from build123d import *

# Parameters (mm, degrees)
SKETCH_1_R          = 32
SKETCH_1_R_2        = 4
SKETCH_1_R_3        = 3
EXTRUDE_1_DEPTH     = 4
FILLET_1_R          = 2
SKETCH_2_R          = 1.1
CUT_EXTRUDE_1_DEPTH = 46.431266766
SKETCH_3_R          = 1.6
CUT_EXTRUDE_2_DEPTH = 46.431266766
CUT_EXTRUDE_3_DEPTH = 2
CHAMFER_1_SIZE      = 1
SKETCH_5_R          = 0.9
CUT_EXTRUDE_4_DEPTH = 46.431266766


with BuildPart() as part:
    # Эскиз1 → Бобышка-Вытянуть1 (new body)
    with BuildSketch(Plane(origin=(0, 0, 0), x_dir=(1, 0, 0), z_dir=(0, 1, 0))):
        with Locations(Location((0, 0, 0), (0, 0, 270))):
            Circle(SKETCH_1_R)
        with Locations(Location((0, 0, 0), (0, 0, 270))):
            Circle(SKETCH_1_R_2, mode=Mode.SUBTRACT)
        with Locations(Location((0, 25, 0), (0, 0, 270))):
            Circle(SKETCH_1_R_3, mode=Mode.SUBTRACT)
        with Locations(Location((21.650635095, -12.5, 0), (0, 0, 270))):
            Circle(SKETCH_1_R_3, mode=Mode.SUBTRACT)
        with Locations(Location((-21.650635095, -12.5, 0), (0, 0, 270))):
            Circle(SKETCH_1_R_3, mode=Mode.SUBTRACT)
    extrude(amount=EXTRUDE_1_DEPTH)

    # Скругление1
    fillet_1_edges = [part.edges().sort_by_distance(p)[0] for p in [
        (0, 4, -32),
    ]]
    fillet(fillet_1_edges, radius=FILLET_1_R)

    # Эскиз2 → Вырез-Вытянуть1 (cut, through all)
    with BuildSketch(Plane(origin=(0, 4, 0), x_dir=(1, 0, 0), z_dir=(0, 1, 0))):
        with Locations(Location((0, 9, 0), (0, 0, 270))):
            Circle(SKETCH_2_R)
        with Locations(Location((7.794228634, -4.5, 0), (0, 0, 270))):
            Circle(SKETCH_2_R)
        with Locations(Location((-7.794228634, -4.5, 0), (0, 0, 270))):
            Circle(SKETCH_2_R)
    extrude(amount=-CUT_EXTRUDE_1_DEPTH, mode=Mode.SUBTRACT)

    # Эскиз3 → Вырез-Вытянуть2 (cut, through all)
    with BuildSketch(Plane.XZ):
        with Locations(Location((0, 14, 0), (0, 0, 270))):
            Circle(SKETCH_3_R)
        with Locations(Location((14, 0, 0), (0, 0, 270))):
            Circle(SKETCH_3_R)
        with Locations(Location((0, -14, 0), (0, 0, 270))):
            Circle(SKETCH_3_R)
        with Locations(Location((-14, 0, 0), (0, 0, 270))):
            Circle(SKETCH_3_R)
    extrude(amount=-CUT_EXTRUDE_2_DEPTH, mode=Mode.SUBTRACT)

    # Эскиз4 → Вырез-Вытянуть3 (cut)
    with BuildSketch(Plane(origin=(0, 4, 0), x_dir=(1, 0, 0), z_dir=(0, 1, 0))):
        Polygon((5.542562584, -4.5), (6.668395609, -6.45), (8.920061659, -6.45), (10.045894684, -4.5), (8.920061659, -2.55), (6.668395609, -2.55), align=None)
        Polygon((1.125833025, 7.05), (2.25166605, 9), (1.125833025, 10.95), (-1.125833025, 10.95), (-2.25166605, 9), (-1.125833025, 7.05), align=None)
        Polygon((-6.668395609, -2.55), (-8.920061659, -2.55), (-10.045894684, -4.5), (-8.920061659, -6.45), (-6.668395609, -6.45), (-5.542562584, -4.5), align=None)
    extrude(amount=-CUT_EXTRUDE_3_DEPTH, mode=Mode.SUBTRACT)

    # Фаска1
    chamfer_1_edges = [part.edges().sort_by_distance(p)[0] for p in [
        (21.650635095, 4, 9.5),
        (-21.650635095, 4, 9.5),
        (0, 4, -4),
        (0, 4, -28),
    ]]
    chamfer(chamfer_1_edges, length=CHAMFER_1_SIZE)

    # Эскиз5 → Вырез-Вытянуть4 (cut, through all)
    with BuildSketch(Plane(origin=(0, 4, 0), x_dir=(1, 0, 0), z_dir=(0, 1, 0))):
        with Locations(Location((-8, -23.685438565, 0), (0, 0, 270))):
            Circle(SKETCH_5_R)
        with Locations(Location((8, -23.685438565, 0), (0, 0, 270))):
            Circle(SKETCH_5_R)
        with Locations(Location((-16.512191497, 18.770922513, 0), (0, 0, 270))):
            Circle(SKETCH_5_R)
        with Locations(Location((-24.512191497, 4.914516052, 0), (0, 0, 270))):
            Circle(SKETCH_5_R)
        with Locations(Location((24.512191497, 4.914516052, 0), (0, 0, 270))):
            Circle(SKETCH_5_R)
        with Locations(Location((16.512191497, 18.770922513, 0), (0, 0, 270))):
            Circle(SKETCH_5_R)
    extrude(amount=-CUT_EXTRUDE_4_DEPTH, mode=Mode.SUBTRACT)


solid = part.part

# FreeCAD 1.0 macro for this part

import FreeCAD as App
import Part
import Sketcher
Q = App.Units.Quantity


def edges_at(feature, points):
    """Names of the edges that pass closest to the given points."""
    edges = feature.Shape.Edges
    near = lambda p: min(range(len(edges)), key=lambda i: edges[i].distToShape(Part.Vertex(*p))[0])
    return sorted({f"Edge{near(p) + 1}" for p in points})


def add_polygon(sketch, points):
    """Adds a closed chain of lines whose ends are joined by coincident constraints."""
    first, n = sketch.GeometryCount, len(points)
    for a, b in zip(points, points[1:] + points[:1]):
        sketch.addGeometry(Part.LineSegment(App.Vector(*a, 0), App.Vector(*b, 0)), False)
    for i in range(n):
        sketch.addConstraint(Sketcher.Constraint("Coincident", first + i, 2, first + (i + 1) % n, 1))

doc = App.newDocument("Part")
body = doc.addObject("PartDesign::Body", "Body")

sketch1 = body.newObject("Sketcher::SketchObject", "Sketch")
sketch1.AttachmentSupport = (doc.getObject("XZ_Plane"), [""])
sketch1.MapMode = "FlatFace"
sketch1.addGeometry([
    Part.Circle(App.Vector(0, 0, 0), App.Vector(0, 0, 1), 32),
    Part.Circle(App.Vector(0, -25, 0), App.Vector(0, 0, 1), 3),
    Part.Circle(App.Vector(-21.7, 12.5, 0), App.Vector(0, 0, 1), 3),
    Part.Circle(App.Vector(0, 0, 0), App.Vector(0, 0, 1), 4),
    Part.Circle(App.Vector(21.7, 12.5, 0), App.Vector(0, 0, 1), 3),
], False)
sketch1.addConstraint([
    Sketcher.Constraint("Coincident", 0, 3, -1, 1),
    Sketcher.Constraint("Coincident", 3, 3, -1, 1),
    Sketcher.Constraint("Equal", 1, 2),
    Sketcher.Constraint("Equal", 2, 4),
    Sketcher.Constraint("Symmetric", 2, 3, 4, 3, -2),
    Sketcher.Constraint("PointOnObject", 1, 3, -2),
    Sketcher.Constraint("Diameter", 0, Q("64 mm")),
    Sketcher.Constraint("Diameter", 1, Q("6 mm")),
    Sketcher.Constraint("Diameter", 3, Q("8 mm")),
    Sketcher.Constraint("DistanceY", 1, 3, -1, 1, Q("25 mm")),
    Sketcher.Constraint("DistanceY", -1, 1, 2, 3, Q("12.5 mm")),
    Sketcher.Constraint("DistanceX", 2, 3, 4, 3, Q("43.30127 mm")),
])
pad1 = body.newObject("PartDesign::Pad", "Pad")
pad1.Profile = sketch1
pad1.Length = 4
pad1.Reversed = True
doc.recompute()

fillet = body.newObject("PartDesign::Fillet", "Fillet")
fillet.Base = (pad1, edges_at(pad1, [(0, 4, -32)]))
fillet.Radius = 2

sketch2 = body.newObject("Sketcher::SketchObject", "Sketch001")
sketch2.AttachmentSupport = (doc.getObject("XZ_Plane"), [""])
sketch2.MapMode = "FlatFace"
sketch2.AttachmentOffset = App.Placement(App.Vector(0, 0, -4), App.Rotation())
sketch2.addGeometry([
    Part.Circle(App.Vector(0, -9, 0), App.Vector(0, 0, 1), 1.1),
    Part.Circle(App.Vector(7.8, 4.5, 0), App.Vector(0, 0, 1), 1.1),
    Part.Circle(App.Vector(-7.8, 4.5, 0), App.Vector(0, 0, 1), 1.1),
], False)
sketch2.addConstraint([
    Sketcher.Constraint("Equal", 0, 1),
    Sketcher.Constraint("Equal", 1, 2),
    Sketcher.Constraint("Symmetric", 1, 3, 2, 3, -2),
    Sketcher.Constraint("PointOnObject", 0, 3, -2),
    Sketcher.Constraint("Diameter", 0, Q("2.2 mm")),
    Sketcher.Constraint("DistanceY", 0, 3, -1, 1, Q("9 mm")),
    Sketcher.Constraint("DistanceY", -1, 1, 1, 3, Q("4.5 mm")),
    Sketcher.Constraint("DistanceX", -1, 1, 1, 3, Q("7.794229 mm")),
])
pocket1 = body.newObject("PartDesign::Pocket", "Pocket")
pocket1.Profile = sketch2
pocket1.Type = "ThroughAll"
pocket1.Reversed = True

sketch3 = body.newObject("Sketcher::SketchObject", "Sketch002")
sketch3.AttachmentSupport = (doc.getObject("XZ_Plane"), [""])
sketch3.MapMode = "FlatFace"
sketch3.addGeometry([
    Part.Circle(App.Vector(0, 14, 0), App.Vector(0, 0, 1), 1.6),
    Part.Circle(App.Vector(14, 0, 0), App.Vector(0, 0, 1), 1.6),
    Part.Circle(App.Vector(0, -14, 0), App.Vector(0, 0, 1), 1.6),
    Part.Circle(App.Vector(-14, 0, 0), App.Vector(0, 0, 1), 1.6),
], False)
sketch3.addConstraint([
    Sketcher.Constraint("Equal", 0, 1),
    Sketcher.Constraint("Equal", 1, 2),
    Sketcher.Constraint("Equal", 2, 3),
    Sketcher.Constraint("Symmetric", 0, 3, 2, 3, -1, 1),
    Sketcher.Constraint("Symmetric", 1, 3, 3, 3, -1, 1),
    Sketcher.Constraint("PointOnObject", 0, 3, -2),
    Sketcher.Constraint("PointOnObject", 1, 3, -1),
    Sketcher.Constraint("Diameter", 0, Q("3.2 mm")),
    Sketcher.Constraint("DistanceY", -1, 1, 0, 3, Q("14 mm")),
    Sketcher.Constraint("DistanceX", -1, 1, 1, 3, Q("14 mm")),
])
pocket2 = body.newObject("PartDesign::Pocket", "Pocket001")
pocket2.Profile = sketch3
pocket2.Type = "ThroughAll"

sketch4 = body.newObject("Sketcher::SketchObject", "Sketch003")
sketch4.AttachmentSupport = (doc.getObject("XZ_Plane"), [""])
sketch4.MapMode = "FlatFace"
sketch4.AttachmentOffset = App.Placement(App.Vector(0, 0, -4), App.Rotation())
add_polygon(sketch4, [(5.5, 4.5), (6.7, 6.5), (8.9, 6.5), (10, 4.5), (8.9, 2.5), (6.7, 2.5)])
add_polygon(sketch4, [(1.1, -7), (2.3, -9), (1.1, -10.9), (-1.1, -10.9), (-2.3, -9), (-1.1, -7)])
add_polygon(sketch4, [(-6.7, 2.5), (-8.9, 2.5), (-10, 4.5), (-8.9, 6.5), (-6.7, 6.5), (-5.5, 4.5)])
sketch4.addConstraint([
    Sketcher.Constraint("Horizontal", 1),
    Sketcher.Constraint("Horizontal", 4),
    Sketcher.Constraint("Horizontal", 8),
    Sketcher.Constraint("Horizontal", 11),
    Sketcher.Constraint("Horizontal", 12),
    Sketcher.Constraint("Horizontal", 15),
    Sketcher.Constraint("Symmetric", 6, 2, 9, 2, -2),
    Sketcher.Constraint("Symmetric", 3, 2, 12, 2, -2),
    Sketcher.Constraint("Symmetric", 2, 2, 13, 2, -2),
    Sketcher.Constraint("Symmetric", 1, 2, 14, 2, -2),
    Sketcher.Constraint("Symmetric", 5, 2, 16, 2, -2),
    Sketcher.Constraint("Parallel", 0, 3),
    Sketcher.Constraint("Parallel", 2, 5),
    Sketcher.Constraint("Parallel", 5, 6),
    Sketcher.Constraint("Parallel", 3, 7),
    Sketcher.Constraint("Parallel", 6, 9),
    Sketcher.Constraint("Parallel", 7, 10),
    Sketcher.Constraint("Parallel", 9, 13),
    Sketcher.Constraint("Parallel", 13, 16),
    Sketcher.Constraint("Parallel", 14, 17),
    Sketcher.Constraint("Horizontal", 2, 2, 5, 2),
    Sketcher.Constraint("Vertical", 1, 2, 3, 2),
    Sketcher.Constraint("Vertical", 8, 2, 10, 2),
    Sketcher.Constraint("Equal", 4, 8),
    Sketcher.Constraint("Equal", 5, 6),
    Sketcher.Constraint("Angle", 0, Q("60 deg")),
    Sketcher.Constraint("DistanceY", 6, 2, -1, 1, Q("9 mm")),
    Sketcher.Constraint("DistanceY", -1, 1, 2, 2, Q("4.5 mm")),
    Sketcher.Constraint("DistanceY", 3, 2, 1, 2, Q("3.9 mm")),
    Sketcher.Constraint("DistanceX", 0, 2, 2, 2, Q("3.377499 mm")),
    Sketcher.Constraint("DistanceX", -1, 1, 1, 2, Q("8.920062 mm")),
])
pocket3 = body.newObject("PartDesign::Pocket", "Pocket002")
pocket3.Profile = sketch4
pocket3.Length = 2
pocket3.Reversed = True
doc.recompute()

chamfer = body.newObject("PartDesign::Chamfer", "Chamfer")
chamfer.Base = (pocket3, edges_at(pocket3, [
    (21.651, 4, 9.5),
    (-21.651, 4, 9.5),
    (0, 4, -4),
    (0, 4, -28),
]))
chamfer.Size = 1

sketch5 = body.newObject("Sketcher::SketchObject", "Sketch004")
sketch5.AttachmentSupport = (doc.getObject("XZ_Plane"), [""])
sketch5.MapMode = "FlatFace"
sketch5.AttachmentOffset = App.Placement(App.Vector(0, 0, -4), App.Rotation())
sketch5.addGeometry([
    Part.Circle(App.Vector(-8, 23.7, 0), App.Vector(0, 0, 1), 0.9),
    Part.Circle(App.Vector(8, 23.7, 0), App.Vector(0, 0, 1), 0.9),
    Part.Circle(App.Vector(-16.5, -18.8, 0), App.Vector(0, 0, 1), 0.9),
    Part.Circle(App.Vector(-24.5, -4.9, 0), App.Vector(0, 0, 1), 0.9),
    Part.Circle(App.Vector(24.5, -4.9, 0), App.Vector(0, 0, 1), 0.9),
    Part.Circle(App.Vector(16.5, -18.8, 0), App.Vector(0, 0, 1), 0.9),
], False)
sketch5.addConstraint([
    Sketcher.Constraint("Equal", 0, 1),
    Sketcher.Constraint("Equal", 1, 2),
    Sketcher.Constraint("Equal", 2, 3),
    Sketcher.Constraint("Equal", 3, 4),
    Sketcher.Constraint("Equal", 4, 5),
    Sketcher.Constraint("Symmetric", 0, 3, 1, 3, -2),
    Sketcher.Constraint("Symmetric", 3, 3, 4, 3, -2),
    Sketcher.Constraint("Symmetric", 2, 3, 5, 3, -2),
    Sketcher.Constraint("Diameter", 0, Q("1.8 mm")),
    Sketcher.Constraint("DistanceX", 0, 3, -1, 1, Q("8 mm")),
    Sketcher.Constraint("DistanceX", 3, 3, 2, 3, Q("8 mm")),
    Sketcher.Constraint("DistanceY", -1, 1, 0, 3, Q("23.685439 mm")),
    Sketcher.Constraint("DistanceX", 2, 3, -1, 1, Q("16.512191 mm")),
    Sketcher.Constraint("DistanceY", 2, 3, 0, 3, Q("42.456361 mm")),
    Sketcher.Constraint("DistanceY", 3, 3, -1, 1, Q("4.914516 mm")),
])
pocket4 = body.newObject("PartDesign::Pocket", "Pocket003")
pocket4.Profile = sketch5
pocket4.Type = "ThroughAll"
pocket4.Reversed = True

doc.recompute()
